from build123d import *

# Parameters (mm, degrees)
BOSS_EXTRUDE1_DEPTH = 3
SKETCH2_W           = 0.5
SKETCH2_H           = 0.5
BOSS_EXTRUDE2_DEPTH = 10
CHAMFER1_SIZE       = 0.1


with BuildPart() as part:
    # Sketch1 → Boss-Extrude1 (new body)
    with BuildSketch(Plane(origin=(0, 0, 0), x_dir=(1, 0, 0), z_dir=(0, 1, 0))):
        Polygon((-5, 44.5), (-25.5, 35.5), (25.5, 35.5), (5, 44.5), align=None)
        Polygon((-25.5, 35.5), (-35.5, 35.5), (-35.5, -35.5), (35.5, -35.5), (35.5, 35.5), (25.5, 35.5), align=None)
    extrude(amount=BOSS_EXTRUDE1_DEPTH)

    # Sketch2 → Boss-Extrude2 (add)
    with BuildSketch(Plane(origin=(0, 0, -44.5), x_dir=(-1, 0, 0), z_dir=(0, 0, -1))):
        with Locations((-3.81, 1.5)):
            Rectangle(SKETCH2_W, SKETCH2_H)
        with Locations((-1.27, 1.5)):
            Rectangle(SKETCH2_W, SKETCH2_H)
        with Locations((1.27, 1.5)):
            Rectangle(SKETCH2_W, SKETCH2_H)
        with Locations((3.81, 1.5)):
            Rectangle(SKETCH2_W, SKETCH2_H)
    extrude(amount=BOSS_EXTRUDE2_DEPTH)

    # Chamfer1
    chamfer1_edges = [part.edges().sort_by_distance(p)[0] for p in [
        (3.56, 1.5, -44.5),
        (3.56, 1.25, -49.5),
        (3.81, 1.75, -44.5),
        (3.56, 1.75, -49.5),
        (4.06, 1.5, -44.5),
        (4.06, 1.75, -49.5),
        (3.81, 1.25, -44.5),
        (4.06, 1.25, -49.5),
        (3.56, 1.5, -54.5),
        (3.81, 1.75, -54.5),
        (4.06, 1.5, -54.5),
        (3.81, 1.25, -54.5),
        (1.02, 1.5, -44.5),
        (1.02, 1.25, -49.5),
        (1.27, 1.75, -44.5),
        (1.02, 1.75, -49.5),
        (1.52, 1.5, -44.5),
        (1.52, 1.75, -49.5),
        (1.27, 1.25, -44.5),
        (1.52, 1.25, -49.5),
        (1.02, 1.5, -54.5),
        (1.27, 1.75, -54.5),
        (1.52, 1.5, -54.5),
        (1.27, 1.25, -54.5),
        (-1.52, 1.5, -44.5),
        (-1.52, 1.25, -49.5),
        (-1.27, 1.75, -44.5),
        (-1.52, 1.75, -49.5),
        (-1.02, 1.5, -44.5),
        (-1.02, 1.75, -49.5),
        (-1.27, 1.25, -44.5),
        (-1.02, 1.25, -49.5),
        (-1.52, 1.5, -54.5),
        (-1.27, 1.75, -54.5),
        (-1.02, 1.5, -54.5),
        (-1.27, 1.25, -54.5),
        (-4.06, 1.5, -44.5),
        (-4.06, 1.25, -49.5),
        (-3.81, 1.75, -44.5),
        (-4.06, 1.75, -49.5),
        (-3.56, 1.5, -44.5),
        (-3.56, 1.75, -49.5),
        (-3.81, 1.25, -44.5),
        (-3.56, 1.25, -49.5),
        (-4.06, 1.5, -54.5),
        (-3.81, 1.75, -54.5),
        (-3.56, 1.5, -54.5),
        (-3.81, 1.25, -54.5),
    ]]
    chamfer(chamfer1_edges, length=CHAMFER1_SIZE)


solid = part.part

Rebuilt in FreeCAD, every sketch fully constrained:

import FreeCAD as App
import Part
import Sketcher

V = App.Vector
Q = App.Units.Quantity


def edges_at(feature, points):
    """Names of the edges that pass closest to the given points."""
    edges = feature.Shape.Edges
    near = lambda p: min(range(len(edges)), key=lambda i: edges[i].distToShape(Part.Vertex(*p))[0])
    return sorted({f"Edge{near(p) + 1}" for p in points})


def add_polygon(sketch, points):
    """Adds a closed chain of lines whose ends are joined by coincident constraints."""
    first, n = sketch.GeometryCount, len(points)
    for a, b in zip(points, points[1:] + points[:1]):
        sketch.addGeometry(Part.LineSegment(App.Vector(*a, 0), App.Vector(*b, 0)), False)
    for i in range(n):
        sketch.addConstraint(Sketcher.Constraint("Coincident", first + i, 2, first + (i + 1) % n, 1))

doc = App.newDocument("Part")
body = doc.addObject("PartDesign::Body", "Body")

sketch1 = doc.addObject("Sketcher::SketchObject", "Sketch")
body.addObject(sketch1)
sketch1.AttachmentSupport = (doc.XZ_Plane, [""])
sketch1.MapMode = "FlatFace"
add_polygon(sketch1, [(-5, -44), (-26, -36), (-36, -36), (-36, 36), (36, 36), (36, -36), (26, -36), (5, -44)])
sketch1.addConstraint([
    Sketcher.Constraint("Horizontal", 1),
    Sketcher.Constraint("Vertical", 2),
    Sketcher.Constraint("Horizontal", 3),
    Sketcher.Constraint("Vertical", 4),
    Sketcher.Constraint("Horizontal", 5),
    Sketcher.Constraint("Horizontal", 7),
    Sketcher.Constraint("Symmetric", 1, 2, 3, 2, -1, 1),
    Sketcher.Constraint("Symmetric", 0, 2, 5, 2, -2),
    Sketcher.Constraint("Equal", 5, 7),
    Sketcher.Constraint("Equal", 3, 2),
    Sketcher.Constraint("Equal", 0, 6),
    Sketcher.Constraint("DistanceX", 1, 2, 1, 1, Q("10 mm")),
    Sketcher.Constraint("DistanceX", 3, 1, 3, 2, Q("71 mm")),
    Sketcher.Constraint("DistanceY", 6, 2, 5, 2, Q("9 mm")),
])
pad1 = doc.addObject("PartDesign::Pad", "Pad")
body.addObject(pad1)
pad1.Profile = sketch1
pad1.Length = 3
pad1.Reversed = True

sketch2 = doc.addObject("Sketcher::SketchObject", "Sketch001")
body.addObject(sketch2)
sketch2.AttachmentSupport = (doc.XY_Plane, [""])
sketch2.MapMode = "FlatFace"
sketch2.AttachmentOffset = App.Placement(V(0, 0, -44.5), App.Rotation())
add_polygon(sketch2, [(4.06, 1.75), (4.06, 1.25), (3.56, 1.25), (3.56, 1.75)])
add_polygon(sketch2, [(1.52, 1.75), (1.52, 1.25), (1.02, 1.25), (1.02, 1.75)])
add_polygon(sketch2, [(-1.02, 1.75), (-1.02, 1.25), (-1.52, 1.25), (-1.52, 1.75)])
add_polygon(sketch2, [(-3.56, 1.75), (-3.56, 1.25), (-4.06, 1.25), (-4.06, 1.75)])
sketch2.addConstraint([
    Sketcher.Constraint("Vertical", 0),
    Sketcher.Constraint("Horizontal", 1),
    Sketcher.Constraint("Vertical", 2),
    Sketcher.Constraint("Horizontal", 3),
    Sketcher.Constraint("Vertical", 4),
    Sketcher.Constraint("Horizontal", 5),
    Sketcher.Constraint("Vertical", 6),
    Sketcher.Constraint("Horizontal", 7),
    Sketcher.Constraint("Vertical", 8),
    Sketcher.Constraint("Horizontal", 9),
    Sketcher.Constraint("Vertical", 10),
    Sketcher.Constraint("Horizontal", 11),
    Sketcher.Constraint("Vertical", 12),
    Sketcher.Constraint("Horizontal", 13),
    Sketcher.Constraint("Vertical", 14),
    Sketcher.Constraint("Horizontal", 15),
    Sketcher.Constraint("Symmetric", 5, 2, 8, 2, -2),
    Sketcher.Constraint("Symmetric", 7, 2, 10, 2, -2),
    Sketcher.Constraint("Symmetric", 1, 2, 12, 2, -2),
    Sketcher.Constraint("Symmetric", 3, 2, 14, 2, -2),
    Sketcher.Constraint("Horizontal", 1, 2, 4, 2),
    Sketcher.Constraint("Horizontal", 3, 2, 6, 2),
    Sketcher.Constraint("Equal", 3, 5),
    Sketcher.Constraint("Equal", 15, 0),
    Sketcher.Constraint("DistanceX", 1, 2, 1, 1, Q("0.5 mm")),
    Sketcher.Constraint("DistanceX", -1, 1, 0, 2, Q("4.06 mm")),
    Sketcher.Constraint("DistanceY", -1, 1, 0, 2, Q("1.25 mm")),
    Sketcher.Constraint("DistanceX", -1, 1, 4, 2, Q("1.52 mm")),
])
pad2 = doc.addObject("PartDesign::Pad", "Pad001")
body.addObject(pad2)
pad2.Profile = sketch2
pad2.Length = 10
pad2.Reversed = True
doc.recompute()

chamfer = doc.addObject("PartDesign::Chamfer", "Chamfer")
body.addObject(chamfer)
chamfer.Base = (pad2, edges_at(pad2, [
    (3.56, 1.5, -44.5),
    (3.56, 1.25, -49.5),
    (3.81, 1.75, -44.5),
    (3.56, 1.75, -49.5),
    (4.06, 1.5, -44.5),
    (4.06, 1.75, -49.5),
    (3.81, 1.25, -44.5),
    (4.06, 1.25, -49.5),
    (3.56, 1.5, -54.5),
    (3.81, 1.75, -54.5),
    (4.06, 1.5, -54.5),
    (3.81, 1.25, -54.5),
    (1.02, 1.5, -44.5),
    (1.02, 1.25, -49.5),
    (1.27, 1.75, -44.5),
    (1.02, 1.75, -49.5),
    (1.52, 1.5, -44.5),
    (1.52, 1.75, -49.5),
    (1.27, 1.25, -44.5),
    (1.52, 1.25, -49.5),
    (1.02, 1.5, -54.5),
    (1.27, 1.75, -54.5),
    (1.52, 1.5, -54.5),
    (1.27, 1.25, -54.5),
    (-1.52, 1.5, -44.5),
    (-1.52, 1.25, -49.5),
    (-1.27, 1.75, -44.5),
    (-1.52, 1.75, -49.5),
    (-1.02, 1.5, -44.5),
    (-1.02, 1.75, -49.5),
    (-1.27, 1.25, -44.5),
    (-1.02, 1.25, -49.5),
    (-1.52, 1.5, -54.5),
    (-1.27, 1.75, -54.5),
    (-1.02, 1.5, -54.5),
    (-1.27, 1.25, -54.5),
    (-4.06, 1.5, -44.5),
    (-4.06, 1.25, -49.5),
    (-3.81, 1.75, -44.5),
    (-4.06, 1.75, -49.5),
    (-3.56, 1.5, -44.5),
    (-3.56, 1.75, -49.5),
    (-3.81, 1.25, -44.5),
    (-3.56, 1.25, -49.5),
    (-4.06, 1.5, -54.5),
    (-3.81, 1.75, -54.5),
    (-3.56, 1.5, -54.5),
    (-3.81, 1.25, -54.5),
]))
chamfer.Size = 0.1

doc.recompute()
